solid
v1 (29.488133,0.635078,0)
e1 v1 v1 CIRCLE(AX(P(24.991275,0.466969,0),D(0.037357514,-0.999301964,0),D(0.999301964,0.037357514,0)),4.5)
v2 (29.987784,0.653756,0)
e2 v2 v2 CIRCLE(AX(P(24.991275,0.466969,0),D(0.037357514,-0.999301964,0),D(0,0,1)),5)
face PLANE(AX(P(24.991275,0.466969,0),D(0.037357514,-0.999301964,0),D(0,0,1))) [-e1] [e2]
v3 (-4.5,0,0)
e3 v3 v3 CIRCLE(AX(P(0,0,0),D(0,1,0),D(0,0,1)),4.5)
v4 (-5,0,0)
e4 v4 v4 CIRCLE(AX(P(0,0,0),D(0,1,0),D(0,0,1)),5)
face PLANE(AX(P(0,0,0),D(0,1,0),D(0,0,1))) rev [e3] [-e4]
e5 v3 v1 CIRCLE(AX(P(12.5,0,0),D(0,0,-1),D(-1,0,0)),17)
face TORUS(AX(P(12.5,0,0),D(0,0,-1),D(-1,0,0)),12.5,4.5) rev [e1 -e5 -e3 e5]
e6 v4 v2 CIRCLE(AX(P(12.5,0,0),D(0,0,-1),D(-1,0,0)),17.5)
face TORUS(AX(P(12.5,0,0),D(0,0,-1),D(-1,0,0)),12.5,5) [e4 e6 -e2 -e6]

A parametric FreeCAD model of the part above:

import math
import FreeCAD as App
import Part
import Sketcher
Q = App.Units.Quantity


def faces_at(feature, points):
    """Names of the faces that lie closest to the given points."""
    faces = feature.Shape.Faces
    near = lambda p: min(range(len(faces)), key=lambda i: faces[i].distToShape(Part.Vertex(*p))[0])
    return sorted({f"Face{near(p) + 1}" for p in points})

doc = App.newDocument("Part")
body = doc.addObject("PartDesign::Body", "Body")

# Sketch on XZ plane
sketch1 = body.newObject("Sketcher::SketchObject", "Sketch")
sketch1.AttachmentSupport = (doc.getObject("XZ_Plane"), [""])
sketch1.MapMode = "FlatFace"
sketch1.addGeometry(Part.Circle(App.Vector(0, 0, 0), App.Vector(0, 0, 1), 5), False)
sketch1.addConstraint(Sketcher.Constraint("Coincident", 0, 3, -1, 1))
sketch1.addConstraint(Sketcher.Constraint("Diameter", 0, Q("10 mm")))

# Sketch on XY plane
sketch2 = body.newObject("Sketcher::SketchObject", "Sketch001")
sketch2.AttachmentSupport = (doc.getObject("XY_Plane"), [""])
sketch2.MapMode = "FlatFace"
sketch2.addGeometry(Part.ArcOfCircle(Part.Circle(App.Vector(12, 0, 0), App.Vector(0, 0, 1), 12), math.radians(2), math.radians(180)), False)
sketch2.addConstraint(Sketcher.Constraint("Coincident", 0, 2, -1, 1))
sketch2.addConstraint(Sketcher.Constraint("PointOnObject", 0, 3, -1))
sketch2.addConstraint(Sketcher.Constraint("Radius", 0, Q("12.5 mm")))
sketch2.addConstraint(Sketcher.Constraint("DistanceY", -1, 1, 0, 1, Q("0.466969 mm")))
doc.recompute()

additivepipe = body.newObject("PartDesign::AdditivePipe", "AdditivePipe")
additivepipe.Profile = sketch1
additivepipe.Spine = (sketch2, ["Edge1"])
doc.recompute()

thickness = body.newObject("PartDesign::Thickness", "Thickness")
thickness.Base = (additivepipe, faces_at(additivepipe, [(24.991, 0.467, 0), (0, 0, 0)]))
thickness.Value = 0.5
thickness.Reversed = True
thickness.Join = "Intersection"

doc.recompute()
